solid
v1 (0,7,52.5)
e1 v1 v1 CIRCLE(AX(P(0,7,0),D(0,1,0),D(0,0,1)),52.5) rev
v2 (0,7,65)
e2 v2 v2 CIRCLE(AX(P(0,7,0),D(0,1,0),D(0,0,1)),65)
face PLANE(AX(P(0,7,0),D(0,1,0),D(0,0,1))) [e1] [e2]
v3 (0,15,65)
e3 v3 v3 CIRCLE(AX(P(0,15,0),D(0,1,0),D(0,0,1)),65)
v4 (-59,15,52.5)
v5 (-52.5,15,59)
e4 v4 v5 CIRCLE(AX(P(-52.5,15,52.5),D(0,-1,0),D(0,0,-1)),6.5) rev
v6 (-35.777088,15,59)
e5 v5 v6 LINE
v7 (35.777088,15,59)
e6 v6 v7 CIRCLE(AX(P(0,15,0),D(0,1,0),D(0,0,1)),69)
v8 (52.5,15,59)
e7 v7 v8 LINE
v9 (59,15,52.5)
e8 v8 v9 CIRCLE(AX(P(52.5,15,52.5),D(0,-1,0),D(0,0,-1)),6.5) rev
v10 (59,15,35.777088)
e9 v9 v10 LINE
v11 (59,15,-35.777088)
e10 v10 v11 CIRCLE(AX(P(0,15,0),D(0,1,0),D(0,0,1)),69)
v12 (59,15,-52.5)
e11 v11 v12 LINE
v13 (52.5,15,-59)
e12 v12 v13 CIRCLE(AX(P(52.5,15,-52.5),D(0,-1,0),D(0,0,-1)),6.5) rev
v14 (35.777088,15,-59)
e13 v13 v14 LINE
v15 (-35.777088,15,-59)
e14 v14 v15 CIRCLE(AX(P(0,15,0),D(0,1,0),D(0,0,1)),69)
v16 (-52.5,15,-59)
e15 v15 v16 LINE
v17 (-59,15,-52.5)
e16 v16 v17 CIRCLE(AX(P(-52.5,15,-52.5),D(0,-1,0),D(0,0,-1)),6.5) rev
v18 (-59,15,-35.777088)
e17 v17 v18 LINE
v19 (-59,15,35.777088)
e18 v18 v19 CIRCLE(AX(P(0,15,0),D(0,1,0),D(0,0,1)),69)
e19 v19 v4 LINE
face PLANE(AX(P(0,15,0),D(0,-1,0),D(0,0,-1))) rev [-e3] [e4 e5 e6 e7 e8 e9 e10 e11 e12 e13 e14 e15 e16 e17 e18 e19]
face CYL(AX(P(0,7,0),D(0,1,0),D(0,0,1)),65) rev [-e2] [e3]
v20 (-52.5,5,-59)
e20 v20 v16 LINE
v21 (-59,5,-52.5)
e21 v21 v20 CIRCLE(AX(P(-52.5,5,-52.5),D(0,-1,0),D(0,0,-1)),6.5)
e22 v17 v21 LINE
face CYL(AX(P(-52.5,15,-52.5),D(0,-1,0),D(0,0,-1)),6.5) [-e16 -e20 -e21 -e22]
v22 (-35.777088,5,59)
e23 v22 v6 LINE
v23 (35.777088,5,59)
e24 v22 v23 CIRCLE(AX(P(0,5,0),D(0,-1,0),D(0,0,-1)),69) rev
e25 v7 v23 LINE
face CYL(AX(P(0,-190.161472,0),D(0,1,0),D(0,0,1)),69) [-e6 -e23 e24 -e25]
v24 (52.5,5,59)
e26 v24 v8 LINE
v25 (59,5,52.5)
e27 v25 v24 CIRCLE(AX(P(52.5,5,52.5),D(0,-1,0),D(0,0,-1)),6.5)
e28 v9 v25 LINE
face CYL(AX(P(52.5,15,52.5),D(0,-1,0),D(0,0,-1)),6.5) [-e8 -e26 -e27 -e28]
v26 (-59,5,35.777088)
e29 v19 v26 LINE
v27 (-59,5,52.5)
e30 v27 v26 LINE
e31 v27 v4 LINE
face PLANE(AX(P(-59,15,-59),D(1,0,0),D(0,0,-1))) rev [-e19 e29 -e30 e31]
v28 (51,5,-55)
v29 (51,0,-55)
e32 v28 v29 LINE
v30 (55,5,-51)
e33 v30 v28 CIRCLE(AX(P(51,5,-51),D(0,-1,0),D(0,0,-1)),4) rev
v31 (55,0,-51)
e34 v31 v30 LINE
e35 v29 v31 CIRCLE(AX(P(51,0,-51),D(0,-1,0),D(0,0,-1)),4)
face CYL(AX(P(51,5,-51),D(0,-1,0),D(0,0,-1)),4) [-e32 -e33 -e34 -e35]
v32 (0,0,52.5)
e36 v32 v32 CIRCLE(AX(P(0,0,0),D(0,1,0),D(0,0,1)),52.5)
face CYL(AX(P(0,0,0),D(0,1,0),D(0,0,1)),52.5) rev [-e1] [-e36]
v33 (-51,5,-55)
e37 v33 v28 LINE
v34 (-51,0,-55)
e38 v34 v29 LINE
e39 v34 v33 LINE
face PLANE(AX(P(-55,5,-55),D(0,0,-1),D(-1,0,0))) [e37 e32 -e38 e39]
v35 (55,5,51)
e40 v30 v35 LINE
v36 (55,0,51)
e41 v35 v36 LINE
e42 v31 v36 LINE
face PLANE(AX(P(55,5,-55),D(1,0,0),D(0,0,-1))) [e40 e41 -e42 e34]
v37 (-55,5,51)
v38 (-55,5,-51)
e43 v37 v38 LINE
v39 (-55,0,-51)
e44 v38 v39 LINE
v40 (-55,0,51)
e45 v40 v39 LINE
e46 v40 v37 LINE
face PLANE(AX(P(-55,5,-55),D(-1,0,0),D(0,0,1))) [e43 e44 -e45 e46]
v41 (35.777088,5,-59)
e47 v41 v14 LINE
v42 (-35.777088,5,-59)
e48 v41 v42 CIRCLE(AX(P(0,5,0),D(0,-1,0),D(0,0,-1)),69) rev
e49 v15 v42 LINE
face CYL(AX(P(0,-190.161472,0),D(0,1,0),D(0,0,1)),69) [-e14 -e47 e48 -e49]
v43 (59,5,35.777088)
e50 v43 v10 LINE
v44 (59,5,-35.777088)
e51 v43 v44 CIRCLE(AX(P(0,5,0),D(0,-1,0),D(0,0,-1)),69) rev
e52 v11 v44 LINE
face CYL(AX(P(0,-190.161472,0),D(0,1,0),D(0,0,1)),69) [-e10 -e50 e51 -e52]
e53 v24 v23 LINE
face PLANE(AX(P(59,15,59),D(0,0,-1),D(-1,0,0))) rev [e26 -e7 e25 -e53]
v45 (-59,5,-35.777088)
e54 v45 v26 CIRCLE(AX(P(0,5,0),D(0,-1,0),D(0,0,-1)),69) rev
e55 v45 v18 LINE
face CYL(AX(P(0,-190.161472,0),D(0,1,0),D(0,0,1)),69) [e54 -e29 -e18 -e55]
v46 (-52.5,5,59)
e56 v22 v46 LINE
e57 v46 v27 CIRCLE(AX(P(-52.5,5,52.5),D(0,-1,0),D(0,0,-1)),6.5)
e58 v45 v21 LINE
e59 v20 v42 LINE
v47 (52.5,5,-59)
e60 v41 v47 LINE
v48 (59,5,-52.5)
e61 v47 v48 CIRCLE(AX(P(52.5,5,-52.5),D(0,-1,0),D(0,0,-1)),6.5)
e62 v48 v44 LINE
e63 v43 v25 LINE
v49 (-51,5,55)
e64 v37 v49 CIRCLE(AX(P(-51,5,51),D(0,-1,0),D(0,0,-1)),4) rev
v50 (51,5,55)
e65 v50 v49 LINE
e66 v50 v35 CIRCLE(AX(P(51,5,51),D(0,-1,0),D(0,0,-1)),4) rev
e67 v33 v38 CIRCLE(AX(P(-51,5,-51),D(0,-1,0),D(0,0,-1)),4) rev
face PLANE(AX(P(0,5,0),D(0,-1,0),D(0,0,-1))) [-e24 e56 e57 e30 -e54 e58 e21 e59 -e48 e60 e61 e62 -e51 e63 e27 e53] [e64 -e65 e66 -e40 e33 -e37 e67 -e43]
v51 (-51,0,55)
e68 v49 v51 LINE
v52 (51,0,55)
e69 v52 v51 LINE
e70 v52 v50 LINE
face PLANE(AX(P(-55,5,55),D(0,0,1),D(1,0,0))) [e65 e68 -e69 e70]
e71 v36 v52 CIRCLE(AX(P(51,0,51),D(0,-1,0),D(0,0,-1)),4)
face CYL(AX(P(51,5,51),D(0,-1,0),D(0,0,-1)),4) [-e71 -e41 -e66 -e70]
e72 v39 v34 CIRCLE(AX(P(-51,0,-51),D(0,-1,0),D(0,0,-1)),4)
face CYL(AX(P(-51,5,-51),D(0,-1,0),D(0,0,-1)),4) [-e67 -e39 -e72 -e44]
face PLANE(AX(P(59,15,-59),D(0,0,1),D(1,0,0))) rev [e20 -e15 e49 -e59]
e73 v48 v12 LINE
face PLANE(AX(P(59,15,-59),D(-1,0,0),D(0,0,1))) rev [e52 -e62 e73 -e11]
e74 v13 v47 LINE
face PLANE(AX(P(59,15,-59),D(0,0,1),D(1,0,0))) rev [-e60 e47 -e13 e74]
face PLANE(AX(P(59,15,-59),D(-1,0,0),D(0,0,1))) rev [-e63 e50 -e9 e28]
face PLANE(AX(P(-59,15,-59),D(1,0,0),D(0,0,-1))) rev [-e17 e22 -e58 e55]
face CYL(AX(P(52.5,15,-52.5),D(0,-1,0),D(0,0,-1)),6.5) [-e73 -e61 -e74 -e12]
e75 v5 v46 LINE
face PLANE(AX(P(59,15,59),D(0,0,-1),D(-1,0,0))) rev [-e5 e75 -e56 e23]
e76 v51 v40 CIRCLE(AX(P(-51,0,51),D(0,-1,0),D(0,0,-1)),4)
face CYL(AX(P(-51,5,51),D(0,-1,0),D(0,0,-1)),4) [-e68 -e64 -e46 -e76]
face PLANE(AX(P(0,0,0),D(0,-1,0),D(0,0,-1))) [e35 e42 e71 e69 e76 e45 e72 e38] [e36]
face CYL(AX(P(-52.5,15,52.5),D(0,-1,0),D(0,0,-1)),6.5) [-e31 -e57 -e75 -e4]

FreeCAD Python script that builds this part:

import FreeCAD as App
import Part
import Sketcher


def edges_at(feature, points):
    """Names of the edges that pass closest to the given points."""
    edges = feature.Shape.Edges
    near = lambda p: min(range(len(edges)), key=lambda i: edges[i].distToShape(Part.Vertex(*p))[0])
    return sorted({f"Edge{near(p) + 1}" for p in points})

doc = App.newDocument("Part")
params = doc.addObject("Spreadsheet::Sheet", "Params")
for row, (alias, value) in enumerate([
    ("sketch1_width", "118 mm"),
    ("pad1_length", "15 mm"),
    ("sketch2_width", "118 mm"),
    ("sketch2_width2", "110 mm"),
    ("pocket1_length", "5 mm"),
    ("sketch3_diameter", "138 mm"),
    ("pad2_length", "10 mm"),
    ("sketch4_diameter", "105 mm"),
    ("sketch5_diameter", "130 mm"),
    ("pocket3_length", "8 mm"),
    ("fillet_radius", "4 mm"),
    ("fillet2_radius", "6.5 mm"),
], start=1):
    params.set(f"A{row}", alias)
    params.set(f"B{row}", "=" + value)
    params.setAlias(f"B{row}", alias)

body = doc.addObject("PartDesign::Body", "Body")

# Sketch on XZ plane
sketch1 = body.newObject("Sketcher::SketchObject", "Sketch")
sketch1.AttachmentSupport = (doc.getObject("XZ_Plane"), [""])
sketch1.MapMode = "FlatFace"
sketch1.addGeometry([
    Part.LineSegment(App.Vector(-59, -59, 0), App.Vector(-59, 59, 0)),
    Part.LineSegment(App.Vector(-59, 59, 0), App.Vector(59, 59, 0)),
    Part.LineSegment(App.Vector(59, 59, 0), App.Vector(59, -59, 0)),
    Part.LineSegment(App.Vector(59, -59, 0), App.Vector(-59, -59, 0)),
], False)
sketch1.addConstraint([
    Sketcher.Constraint("Coincident", 0, 2, 1, 1),
    Sketcher.Constraint("Coincident", 1, 2, 2, 1),
    Sketcher.Constraint("Coincident", 2, 2, 3, 1),
    Sketcher.Constraint("Coincident", 3, 2, 0, 1),
    Sketcher.Constraint("Vertical", 0),
    Sketcher.Constraint("Horizontal", 1),
    Sketcher.Constraint("Vertical", 2),
    Sketcher.Constraint("Horizontal", 3),
    Sketcher.Constraint("Symmetric", 0, 2, 2, 2, -1, 1),
    Sketcher.Constraint("Equal", 3, 0),
    Sketcher.Constraint("DistanceX", 1, 1, 1, 2, 118.0),
])
sketch1.setExpression("Constraints[10]", "Params.sketch1_width")
pad1 = body.newObject("PartDesign::Pad", "Pad")
pad1.Profile = sketch1
pad1.setExpression("Length", "Params.pad1_length")
pad1.Reversed = True

# Sketch on XZ plane
sketch2 = body.newObject("Sketcher::SketchObject", "Sketch001")
sketch2.AttachmentSupport = (doc.getObject("XZ_Plane"), [""])
sketch2.MapMode = "FlatFace"
sketch2.addGeometry([
    Part.LineSegment(App.Vector(-59, 59, 0), App.Vector(-59, -59, 0)),  # 0
    Part.LineSegment(App.Vector(-59, -59, 0), App.Vector(59, -59, 0)),  # 1
    Part.LineSegment(App.Vector(59, -59, 0), App.Vector(59, 59, 0)),  # 2
    Part.LineSegment(App.Vector(59, 59, 0), App.Vector(-59, 59, 0)),  # 3
    Part.LineSegment(App.Vector(55, -55, 0), App.Vector(-55, -55, 0)),  # 4
    Part.LineSegment(App.Vector(-55, -55, 0), App.Vector(-55, 55, 0)),  # 5
    Part.LineSegment(App.Vector(-55, 55, 0), App.Vector(55, 55, 0)),  # 6
    Part.LineSegment(App.Vector(55, 55, 0), App.Vector(55, -55, 0)),  # 7
], False)
sketch2.addConstraint([
    Sketcher.Constraint("Coincident", 0, 2, 1, 1),
    Sketcher.Constraint("Coincident", 1, 2, 2, 1),
    Sketcher.Constraint("Coincident", 2, 2, 3, 1),
    Sketcher.Constraint("Coincident", 3, 2, 0, 1),
    Sketcher.Constraint("Coincident", 4, 2, 5, 1),
    Sketcher.Constraint("Coincident", 5, 2, 6, 1),
    Sketcher.Constraint("Coincident", 6, 2, 7, 1),
    Sketcher.Constraint("Coincident", 7, 2, 4, 1),
    Sketcher.Constraint("Vertical", 0),
    Sketcher.Constraint("Horizontal", 1),
    Sketcher.Constraint("Vertical", 2),
    Sketcher.Constraint("Horizontal", 3),
    Sketcher.Constraint("Horizontal", 4),
    Sketcher.Constraint("Vertical", 5),
    Sketcher.Constraint("Horizontal", 6),
    Sketcher.Constraint("Vertical", 7),
    Sketcher.Constraint("Symmetric", 0, 2, 2, 2, -1, 1),
    Sketcher.Constraint("Symmetric", 4, 2, 6, 2, -1, 1),
    Sketcher.Constraint("Equal", 3, 0),
    Sketcher.Constraint("Equal", 6, 5),
    Sketcher.Constraint("DistanceX", 1, 1, 1, 2, 118.0),
    Sketcher.Constraint("DistanceX", 4, 2, 4, 1, 110.0),
])
sketch2.setExpression("Constraints[20]", "Params.sketch2_width")
sketch2.setExpression("Constraints[21]", "Params.sketch2_width2")
pocket1 = body.newObject("PartDesign::Pocket", "Pocket")
pocket1.Profile = sketch2
pocket1.setExpression("Length", "Params.pocket1_length")

# Sketch on XZ plane
sketch3 = body.newObject("Sketcher::SketchObject", "Sketch002")
sketch3.AttachmentSupport = (doc.getObject("XZ_Plane"), [""])
sketch3.MapMode = "FlatFace"
sketch3.AttachmentOffset = App.Placement(App.Vector(0, 0, -15), App.Rotation())
sketch3.addGeometry(Part.Circle(App.Vector(0, 0, 0), App.Vector(0, 0, 1), 69), False)
sketch3.addConstraint([
    Sketcher.Constraint("Coincident", 0, 3, -1, 1),
    Sketcher.Constraint("Diameter", 0, 138.0),
])
sketch3.setExpression("Constraints[1]", "Params.sketch3_diameter")
pad2 = body.newObject("PartDesign::Pad", "Pad001")
pad2.Profile = sketch3
pad2.setExpression("Length", "Params.pad2_length")

# Sketch on XZ plane
sketch4 = body.newObject("Sketcher::SketchObject", "Sketch003")
sketch4.AttachmentSupport = (doc.getObject("XZ_Plane"), [""])
sketch4.MapMode = "FlatFace"
sketch4.AttachmentOffset = App.Placement(App.Vector(0, 0, -15), App.Rotation())
sketch4.addGeometry(Part.Circle(App.Vector(0, 0, 0), App.Vector(0, 0, 1), 52), False)
sketch4.addConstraint([
    Sketcher.Constraint("Coincident", 0, 3, -1, 1),
    Sketcher.Constraint("Diameter", 0, 105.0),
])
sketch4.setExpression("Constraints[1]", "Params.sketch4_diameter")
pocket2 = body.newObject("PartDesign::Pocket", "Pocket001")
pocket2.Profile = sketch4
pocket2.Type = "ThroughAll"
pocket2.Reversed = True

# Sketch on XZ plane
sketch5 = body.newObject("Sketcher::SketchObject", "Sketch004")
sketch5.AttachmentSupport = (doc.getObject("XZ_Plane"), [""])
sketch5.MapMode = "FlatFace"
sketch5.AttachmentOffset = App.Placement(App.Vector(0, 0, -15), App.Rotation())
sketch5.addGeometry(Part.Circle(App.Vector(0, 0, 0), App.Vector(0, 0, 1), 65), False)
sketch5.addConstraint([
    Sketcher.Constraint("Coincident", 0, 3, -1, 1),
    Sketcher.Constraint("Diameter", 0, 130.0),
])
sketch5.setExpression("Constraints[1]", "Params.sketch5_diameter")
pocket3 = body.newObject("PartDesign::Pocket", "Pocket002")
pocket3.Profile = sketch5
pocket3.setExpression("Length", "Params.pocket3_length")
pocket3.Reversed = True
doc.recompute()

fillet = body.newObject("PartDesign::Fillet", "Fillet")
fillet.Base = (pocket3, edges_at(pocket3, [
    (55, 2.5, -55),
    (-55, 2.5, -55),
    (-55, 2.5, 55),
    (55, 2.5, 55),
]))
fillet.setExpression("Radius", "Params.fillet_radius")
doc.recompute()

fillet2 = body.newObject("PartDesign::Fillet", "Fillet001")
fillet2.Base = (fillet, edges_at(fillet, [
    (-59, 10, -59),
    (59, 10, -59),
    (59, 10, 59),
    (-59, 10, 59),
]))
fillet2.setExpression("Radius", "Params.fillet2_radius")

doc.recompute()
